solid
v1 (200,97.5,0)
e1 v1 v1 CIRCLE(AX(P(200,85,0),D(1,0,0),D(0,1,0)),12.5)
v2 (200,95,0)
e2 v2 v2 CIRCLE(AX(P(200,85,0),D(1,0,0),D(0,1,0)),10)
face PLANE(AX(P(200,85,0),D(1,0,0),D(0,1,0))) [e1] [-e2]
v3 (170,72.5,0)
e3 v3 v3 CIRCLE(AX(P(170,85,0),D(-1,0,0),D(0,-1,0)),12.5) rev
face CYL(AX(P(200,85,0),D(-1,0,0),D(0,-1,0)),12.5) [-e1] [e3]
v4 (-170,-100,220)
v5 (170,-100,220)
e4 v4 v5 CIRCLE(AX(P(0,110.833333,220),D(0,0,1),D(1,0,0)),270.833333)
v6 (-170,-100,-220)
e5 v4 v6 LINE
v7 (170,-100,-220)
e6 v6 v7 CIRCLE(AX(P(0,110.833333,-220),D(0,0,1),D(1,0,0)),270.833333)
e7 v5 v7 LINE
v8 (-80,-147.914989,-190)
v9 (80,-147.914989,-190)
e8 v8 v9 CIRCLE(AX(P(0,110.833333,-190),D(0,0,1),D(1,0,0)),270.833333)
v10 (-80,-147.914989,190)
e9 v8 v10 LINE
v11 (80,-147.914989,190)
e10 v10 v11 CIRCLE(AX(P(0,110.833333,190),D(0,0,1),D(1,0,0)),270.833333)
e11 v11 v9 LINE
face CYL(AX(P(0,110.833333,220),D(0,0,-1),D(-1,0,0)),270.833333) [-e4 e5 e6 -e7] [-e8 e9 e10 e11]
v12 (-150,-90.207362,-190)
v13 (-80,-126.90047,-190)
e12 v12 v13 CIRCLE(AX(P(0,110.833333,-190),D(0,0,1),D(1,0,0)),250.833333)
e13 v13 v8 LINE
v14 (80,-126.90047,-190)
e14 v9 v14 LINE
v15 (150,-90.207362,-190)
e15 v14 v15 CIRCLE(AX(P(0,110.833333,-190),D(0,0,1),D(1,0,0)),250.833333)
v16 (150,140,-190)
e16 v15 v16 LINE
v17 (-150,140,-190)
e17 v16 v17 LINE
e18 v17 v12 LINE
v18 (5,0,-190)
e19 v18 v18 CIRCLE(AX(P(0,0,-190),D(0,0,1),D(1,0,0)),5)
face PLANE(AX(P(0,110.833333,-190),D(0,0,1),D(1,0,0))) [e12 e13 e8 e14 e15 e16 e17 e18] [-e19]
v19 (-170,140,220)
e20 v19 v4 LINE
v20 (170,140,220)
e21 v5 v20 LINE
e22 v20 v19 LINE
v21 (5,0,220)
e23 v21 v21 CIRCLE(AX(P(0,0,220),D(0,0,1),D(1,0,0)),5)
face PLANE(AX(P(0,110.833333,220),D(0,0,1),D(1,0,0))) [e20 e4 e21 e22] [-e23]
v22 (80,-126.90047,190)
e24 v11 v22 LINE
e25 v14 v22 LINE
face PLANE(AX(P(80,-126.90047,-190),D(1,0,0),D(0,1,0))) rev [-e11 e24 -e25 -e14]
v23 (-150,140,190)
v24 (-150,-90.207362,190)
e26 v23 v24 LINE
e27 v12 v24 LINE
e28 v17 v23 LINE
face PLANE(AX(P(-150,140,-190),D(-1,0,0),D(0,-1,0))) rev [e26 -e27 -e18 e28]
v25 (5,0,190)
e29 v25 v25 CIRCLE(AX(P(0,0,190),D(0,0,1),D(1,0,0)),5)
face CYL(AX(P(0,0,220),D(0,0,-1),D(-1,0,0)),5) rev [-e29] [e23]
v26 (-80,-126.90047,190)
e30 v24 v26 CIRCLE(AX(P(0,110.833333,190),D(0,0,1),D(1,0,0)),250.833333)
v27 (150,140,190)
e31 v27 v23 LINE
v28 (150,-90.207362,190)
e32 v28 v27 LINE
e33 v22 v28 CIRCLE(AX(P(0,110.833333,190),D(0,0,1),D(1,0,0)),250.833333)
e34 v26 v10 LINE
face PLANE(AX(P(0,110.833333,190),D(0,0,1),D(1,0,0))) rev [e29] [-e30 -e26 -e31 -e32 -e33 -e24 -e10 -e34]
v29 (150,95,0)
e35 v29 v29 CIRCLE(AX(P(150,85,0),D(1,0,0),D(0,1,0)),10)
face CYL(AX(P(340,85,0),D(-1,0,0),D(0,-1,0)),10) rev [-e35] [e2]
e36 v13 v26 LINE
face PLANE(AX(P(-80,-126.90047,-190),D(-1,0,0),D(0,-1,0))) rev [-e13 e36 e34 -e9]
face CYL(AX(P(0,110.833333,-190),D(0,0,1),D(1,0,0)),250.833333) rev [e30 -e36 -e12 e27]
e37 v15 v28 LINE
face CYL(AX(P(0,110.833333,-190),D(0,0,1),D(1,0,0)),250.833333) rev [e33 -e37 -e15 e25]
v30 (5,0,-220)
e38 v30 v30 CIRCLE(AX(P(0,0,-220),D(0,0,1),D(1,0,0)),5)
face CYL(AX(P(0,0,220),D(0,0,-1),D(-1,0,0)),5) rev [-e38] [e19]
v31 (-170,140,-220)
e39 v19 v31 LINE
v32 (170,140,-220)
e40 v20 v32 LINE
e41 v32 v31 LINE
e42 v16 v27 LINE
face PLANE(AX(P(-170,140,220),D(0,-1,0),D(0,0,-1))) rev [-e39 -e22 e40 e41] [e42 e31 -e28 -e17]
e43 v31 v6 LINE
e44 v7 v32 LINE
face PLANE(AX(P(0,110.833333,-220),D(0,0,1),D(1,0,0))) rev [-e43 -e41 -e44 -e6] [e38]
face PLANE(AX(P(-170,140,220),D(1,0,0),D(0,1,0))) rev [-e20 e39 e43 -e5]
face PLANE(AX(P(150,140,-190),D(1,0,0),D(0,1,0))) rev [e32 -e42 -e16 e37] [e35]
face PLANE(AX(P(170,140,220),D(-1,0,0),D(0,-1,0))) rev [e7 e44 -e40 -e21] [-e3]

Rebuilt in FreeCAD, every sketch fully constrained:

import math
import FreeCAD as App
import Part
import Sketcher
from FreeCAD import Vector
Q = App.Units.Quantity

doc = App.newDocument("Part")
body = doc.addObject("PartDesign::Body", "Body")

# Sketch on XY plane
sketch1 = doc.addObject("Sketcher::SketchObject", "Sketch")
body.addObject(sketch1)
sketch1.AttachmentSupport = (doc.XY_Plane, [""])
sketch1.MapMode = "FlatFace"
sketch1.addGeometry(Part.LineSegment(Vector(170, 140, 0), Vector(-170, 140, 0)), False)
sketch1.addGeometry(Part.LineSegment(Vector(-170, 140, 0), Vector(-170, -100, 0)), False)
sketch1.addGeometry(Part.ArcOfCircle(Part.Circle(Vector(0, 111, 0), Vector(0, 0, 1), 271), math.radians(-129), math.radians(-51)), False)
sketch1.addGeometry(Part.LineSegment(Vector(170, -100, 0), Vector(170, 140, 0)), False)
sketch1.addGeometry(Part.Circle(Vector(0, 0, 0), Vector(0, 0, 1), 5), False)
sketch1.addConstraint(Sketcher.Constraint("Coincident", 0, 2, 1, 1))
sketch1.addConstraint(Sketcher.Constraint("Coincident", 1, 2, 2, 1))
sketch1.addConstraint(Sketcher.Constraint("Coincident", 2, 2, 3, 1))
sketch1.addConstraint(Sketcher.Constraint("Coincident", 3, 2, 0, 1))
sketch1.addConstraint(Sketcher.Constraint("Horizontal", 0))
sketch1.addConstraint(Sketcher.Constraint("Vertical", 1))
sketch1.addConstraint(Sketcher.Constraint("Vertical", 3))
sketch1.addConstraint(Sketcher.Constraint("Coincident", 4, 3, -1, 1))
sketch1.addConstraint(Sketcher.Constraint("Symmetric", 1, 2, 2, 2, -2))
sketch1.addConstraint(Sketcher.Constraint("Diameter", 4, Q("10 mm")))
sketch1.addConstraint(Sketcher.Constraint("DistanceX", 0, 2, 0, 1, Q("340 mm")))
sketch1.addConstraint(Sketcher.Constraint("DistanceY", 1, 2, 1, 1, Q("240 mm")))
sketch1.addConstraint(Sketcher.Constraint("DistanceY", -1, 1, 0, 2, Q("140 mm")))
sketch1.addConstraint(Sketcher.Constraint("Radius", 2, Q("270.833333 mm")))
pad1 = doc.addObject("PartDesign::Pad", "Pad")
body.addObject(pad1)
pad1.Profile = sketch1
pad1.Length = 440
pad1.Midplane = True

# Sketch on XY plane
sketch2 = doc.addObject("Sketcher::SketchObject", "Sketch001")
body.addObject(sketch2)
sketch2.AttachmentSupport = (doc.XY_Plane, [""])
sketch2.MapMode = "FlatFace"
sketch2.addGeometry(Part.LineSegment(Vector(150, 140, 0), Vector(-150, 140, 0)), False)
sketch2.addGeometry(Part.LineSegment(Vector(-150, 140, 0), Vector(-150, -90, 0)), False)
sketch2.addGeometry(Part.ArcOfCircle(Part.Circle(Vector(0, 111, 0), Vector(0, 0, 1), 251), math.radians(-126.73), math.radians(-108.6)), False)
sketch2.addGeometry(Part.LineSegment(Vector(-80, -127, 0), Vector(-80, -160, 0)), False)
sketch2.addGeometry(Part.ArcOfCircle(Part.Circle(Vector(0, 111, 0), Vector(0, 0, 1), 282), math.radians(-106), math.radians(-74)), False)
sketch2.addGeometry(Part.LineSegment(Vector(80, -160, 0), Vector(80, -127, 0)), False)
sketch2.addGeometry(Part.ArcOfCircle(Part.Circle(Vector(0, 111, 0), Vector(0, 0, 1), 251), math.radians(-71.4), math.radians(-53.27)), False)
sketch2.addGeometry(Part.LineSegment(Vector(150, -90, 0), Vector(150, 140, 0)), False)
sketch2.addConstraint(Sketcher.Constraint("Coincident", 0, 2, 1, 1))
sketch2.addConstraint(Sketcher.Constraint("Coincident", 1, 2, 2, 1))
sketch2.addConstraint(Sketcher.Constraint("Coincident", 2, 2, 3, 1))
sketch2.addConstraint(Sketcher.Constraint("Coincident", 3, 2, 4, 1))
sketch2.addConstraint(Sketcher.Constraint("Coincident", 4, 2, 5, 1))
sketch2.addConstraint(Sketcher.Constraint("Coincident", 5, 2, 6, 1))
sketch2.addConstraint(Sketcher.Constraint("Coincident", 6, 2, 7, 1))
sketch2.addConstraint(Sketcher.Constraint("Coincident", 7, 2, 0, 1))
sketch2.addConstraint(Sketcher.Constraint("Horizontal", 0))
sketch2.addConstraint(Sketcher.Constraint("Vertical", 1))
sketch2.addConstraint(Sketcher.Constraint("Vertical", 3))
sketch2.addConstraint(Sketcher.Constraint("Vertical", 5))
sketch2.addConstraint(Sketcher.Constraint("Vertical", 7))
sketch2.addConstraint(Sketcher.Constraint("Coincident", 4, 3, 2, 3))
sketch2.addConstraint(Sketcher.Constraint("Coincident", 6, 3, 2, 3))
sketch2.addConstraint(Sketcher.Constraint("Equal", 2, 6))
sketch2.addConstraint(Sketcher.Constraint("Symmetric", 3, 2, 4, 2, -2))
sketch2.addConstraint(Sketcher.Constraint("Horizontal", 1, 2, 6, 2))
sketch2.addConstraint(Sketcher.Constraint("DistanceX", 0, 2, 0, 1, Q("300 mm")))
sketch2.addConstraint(Sketcher.Constraint("DistanceY", -1, 1, 0, 2, Q("140 mm")))
sketch2.addConstraint(Sketcher.Constraint("DistanceX", 2, 2, -1, 1, Q("80 mm")))
sketch2.addConstraint(Sketcher.Constraint("Radius", 2, Q("250.833333 mm")))
sketch2.addConstraint(Sketcher.Constraint("Radius", 4, Q("282.296047 mm")))
sketch2.addConstraint(Sketcher.Constraint("DistanceY", 1, 2, 1, 1, Q("230.207362 mm")))
pocket1 = doc.addObject("PartDesign::Pocket", "Pocket")
body.addObject(pocket1)
pocket1.Profile = sketch2
pocket1.Length = 380
pocket1.Midplane = True

# Sketch on YZ plane
sketch3 = doc.addObject("Sketcher::SketchObject", "Sketch002")
body.addObject(sketch3)
sketch3.AttachmentSupport = (doc.YZ_Plane, [""])
sketch3.MapMode = "FlatFace"
sketch3.AttachmentOffset = App.Placement(Vector(0, 0, 150), App.Rotation())
sketch3.addGeometry(Part.Circle(Vector(85, 0, 0), Vector(0, 0, 1), 10), False)
sketch3.addConstraint(Sketcher.Constraint("PointOnObject", 0, 3, -1))
sketch3.addConstraint(Sketcher.Constraint("Diameter", 0, Q("20 mm")))
sketch3.addConstraint(Sketcher.Constraint("DistanceX", -1, 1, 0, 3, Q("85 mm")))
pocket2 = doc.addObject("PartDesign::Pocket", "Pocket001")
body.addObject(pocket2)
pocket2.Profile = sketch3
pocket2.Length = 380
pocket2.Midplane = True

# Sketch on YZ plane
sketch4 = doc.addObject("Sketcher::SketchObject", "Sketch003")
body.addObject(sketch4)
sketch4.AttachmentSupport = (doc.YZ_Plane, [""])
sketch4.MapMode = "FlatFace"
sketch4.AttachmentOffset = App.Placement(Vector(0, 0, 170), App.Rotation())
sketch4.addGeometry(Part.Circle(Vector(85, 0, 0), Vector(0, 0, 1), 12), False)
sketch4.addGeometry(Part.Circle(Vector(85, 0, 0), Vector(0, 0, 1), 10), False)
sketch4.addConstraint(Sketcher.Constraint("Coincident", 1, 3, 0, 3))
sketch4.addConstraint(Sketcher.Constraint("PointOnObject", 0, 3, -1))
sketch4.addConstraint(Sketcher.Constraint("Diameter", 0, Q("25 mm")))
sketch4.addConstraint(Sketcher.Constraint("Diameter", 1, Q("20 mm")))
sketch4.addConstraint(Sketcher.Constraint("DistanceX", -1, 1, 0, 3, Q("85 mm")))
pad2 = doc.addObject("PartDesign::Pad", "Pad001")
body.addObject(pad2)
pad2.Profile = sketch4
pad2.Length = 30

doc.recompute()
